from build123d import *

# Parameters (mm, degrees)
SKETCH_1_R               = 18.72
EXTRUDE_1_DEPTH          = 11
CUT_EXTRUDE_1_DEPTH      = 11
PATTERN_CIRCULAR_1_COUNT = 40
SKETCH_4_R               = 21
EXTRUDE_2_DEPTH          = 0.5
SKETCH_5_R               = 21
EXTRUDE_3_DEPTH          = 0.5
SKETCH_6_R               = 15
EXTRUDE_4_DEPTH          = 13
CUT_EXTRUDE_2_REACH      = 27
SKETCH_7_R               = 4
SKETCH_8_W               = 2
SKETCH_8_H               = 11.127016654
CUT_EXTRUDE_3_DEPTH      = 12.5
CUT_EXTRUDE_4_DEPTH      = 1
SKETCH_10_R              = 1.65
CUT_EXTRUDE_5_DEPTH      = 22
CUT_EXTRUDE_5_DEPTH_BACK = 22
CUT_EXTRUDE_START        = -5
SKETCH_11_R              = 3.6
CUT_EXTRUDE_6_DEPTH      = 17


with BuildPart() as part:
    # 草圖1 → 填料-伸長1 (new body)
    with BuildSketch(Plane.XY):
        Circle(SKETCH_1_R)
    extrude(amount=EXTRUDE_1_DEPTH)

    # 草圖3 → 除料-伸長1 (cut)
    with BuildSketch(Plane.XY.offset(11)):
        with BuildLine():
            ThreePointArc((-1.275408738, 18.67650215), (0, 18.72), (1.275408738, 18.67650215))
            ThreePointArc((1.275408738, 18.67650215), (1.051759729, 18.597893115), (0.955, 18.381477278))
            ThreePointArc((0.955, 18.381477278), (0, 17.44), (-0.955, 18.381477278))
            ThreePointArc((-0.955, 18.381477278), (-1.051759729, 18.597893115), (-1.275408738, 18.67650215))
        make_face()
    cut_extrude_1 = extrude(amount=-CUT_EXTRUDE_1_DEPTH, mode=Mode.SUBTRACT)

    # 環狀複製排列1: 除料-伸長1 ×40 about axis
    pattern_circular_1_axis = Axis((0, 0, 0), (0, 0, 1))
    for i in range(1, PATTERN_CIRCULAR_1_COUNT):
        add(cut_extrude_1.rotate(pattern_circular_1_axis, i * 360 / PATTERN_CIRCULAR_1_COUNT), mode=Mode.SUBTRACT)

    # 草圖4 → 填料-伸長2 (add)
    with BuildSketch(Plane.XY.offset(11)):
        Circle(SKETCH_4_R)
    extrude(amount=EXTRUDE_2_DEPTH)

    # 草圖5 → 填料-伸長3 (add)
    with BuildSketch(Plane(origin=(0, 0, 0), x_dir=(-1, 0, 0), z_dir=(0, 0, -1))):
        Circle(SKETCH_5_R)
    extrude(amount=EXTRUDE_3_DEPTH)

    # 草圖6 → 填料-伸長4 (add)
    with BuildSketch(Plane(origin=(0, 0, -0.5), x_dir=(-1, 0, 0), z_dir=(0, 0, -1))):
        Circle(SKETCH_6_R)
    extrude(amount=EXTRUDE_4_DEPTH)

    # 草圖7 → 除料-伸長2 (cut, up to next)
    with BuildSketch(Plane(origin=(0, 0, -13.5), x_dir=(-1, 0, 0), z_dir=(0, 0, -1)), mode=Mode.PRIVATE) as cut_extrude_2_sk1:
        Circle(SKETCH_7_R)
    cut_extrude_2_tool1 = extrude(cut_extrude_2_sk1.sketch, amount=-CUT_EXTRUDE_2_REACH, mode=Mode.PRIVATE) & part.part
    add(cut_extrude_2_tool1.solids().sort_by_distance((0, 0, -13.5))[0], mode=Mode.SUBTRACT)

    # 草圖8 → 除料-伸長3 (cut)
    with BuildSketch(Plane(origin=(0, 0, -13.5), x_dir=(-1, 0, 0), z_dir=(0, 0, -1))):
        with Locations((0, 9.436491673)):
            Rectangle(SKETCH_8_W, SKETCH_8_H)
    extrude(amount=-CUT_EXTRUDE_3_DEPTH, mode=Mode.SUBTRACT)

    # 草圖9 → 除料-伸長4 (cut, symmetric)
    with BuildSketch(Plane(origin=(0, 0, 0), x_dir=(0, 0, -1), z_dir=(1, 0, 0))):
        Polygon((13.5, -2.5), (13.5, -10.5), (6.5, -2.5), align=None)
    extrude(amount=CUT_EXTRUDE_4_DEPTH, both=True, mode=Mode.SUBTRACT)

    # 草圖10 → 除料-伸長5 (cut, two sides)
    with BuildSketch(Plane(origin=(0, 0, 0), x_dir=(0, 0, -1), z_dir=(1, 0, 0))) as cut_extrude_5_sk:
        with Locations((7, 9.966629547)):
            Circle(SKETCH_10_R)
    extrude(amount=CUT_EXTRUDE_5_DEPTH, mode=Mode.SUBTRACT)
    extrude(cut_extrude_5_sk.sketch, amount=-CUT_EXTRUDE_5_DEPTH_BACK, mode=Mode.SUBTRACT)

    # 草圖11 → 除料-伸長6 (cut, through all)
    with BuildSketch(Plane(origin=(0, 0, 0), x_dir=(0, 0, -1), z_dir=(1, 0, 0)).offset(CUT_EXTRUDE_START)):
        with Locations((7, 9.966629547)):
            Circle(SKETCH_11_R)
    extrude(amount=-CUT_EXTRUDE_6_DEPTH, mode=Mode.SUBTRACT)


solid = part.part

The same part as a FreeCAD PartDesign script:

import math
import FreeCAD as App
import Part
import Sketcher

V = App.Vector
Q = App.Units.Quantity


def add_polygon(sketch, points):
    """Adds a closed chain of lines whose ends are joined by coincident constraints."""
    first, n = sketch.GeometryCount, len(points)
    for a, b in zip(points, points[1:] + points[:1]):
        sketch.addGeometry(Part.LineSegment(App.Vector(*a, 0), App.Vector(*b, 0)), False)
    for i in range(n):
        sketch.addConstraint(Sketcher.Constraint("Coincident", first + i, 2, first + (i + 1) % n, 1))

doc = App.newDocument("Part")
body = doc.addObject("PartDesign::Body", "Body")

sketch1 = doc.addObject("Sketcher::SketchObject", "Sketch")
body.addObject(sketch1)
sketch1.AttachmentSupport = (doc.XY_Plane, [""])
sketch1.MapMode = "FlatFace"
sketch1.addGeometry(Part.Circle(V(0, 0, 0), V(0, 0, 1), 18.72), False)
sketch1.addConstraint(Sketcher.Constraint("Coincident", 0, 3, -1, 1))
sketch1.addConstraint(Sketcher.Constraint("Diameter", 0, Q("37.44 mm")))
pad1 = doc.addObject("PartDesign::Pad", "Pad")
body.addObject(pad1)
pad1.Profile = sketch1
pad1.Length = 11

sketch2 = doc.addObject("Sketcher::SketchObject", "Sketch001")
body.addObject(sketch2)
sketch2.AttachmentSupport = (doc.XY_Plane, [""])
sketch2.MapMode = "FlatFace"
sketch2.AttachmentOffset = App.Placement(V(0, 0, 11), App.Rotation())
sketch2.addGeometry(Part.ArcOfCircle(Part.Circle(V(0, 0, 0), V(0, 0, 1), 18.72), math.radians(86.093366), math.radians(93.906634)), False)
sketch2.addGeometry(Part.ArcOfCircle(Part.Circle(V(-1.254969, 18.377199, 0), V(0, 0, 1), 0.3), math.radians(0.817075), math.radians(93.906634)), False)
sketch2.addGeometry(Part.ArcOfCircle(Part.Circle(V(0, 18.395097, 0), V(0, 0, 1), 0.955097), math.radians(-179.182925), math.radians(-0.817075)), False)
sketch2.addGeometry(Part.ArcOfCircle(Part.Circle(V(1.254969, 18.377199, 0), V(0, 0, 1), 0.3), math.radians(86.093366), math.radians(179.182925)), False)
sketch2.addConstraint(Sketcher.Constraint("Tangent", 0, 2, 1, 2))
sketch2.addConstraint(Sketcher.Constraint("Tangent", 1, 1, 2, 1))
sketch2.addConstraint(Sketcher.Constraint("Tangent", 2, 2, 3, 2))
sketch2.addConstraint(Sketcher.Constraint("Tangent", 3, 1, 0, 1))
sketch2.addConstraint(Sketcher.Constraint("Coincident", 0, 3, -1, 1))
sketch2.addConstraint(Sketcher.Constraint("Equal", 1, 3))
sketch2.addConstraint(Sketcher.Constraint("PointOnObject", 2, 3, -2))
sketch2.addConstraint(Sketcher.Constraint("Radius", 1, Q("0.3 mm")))
sketch2.addConstraint(Sketcher.Constraint("Radius", 0, Q("18.72 mm")))
sketch2.addConstraint(Sketcher.Constraint("DistanceX", 1, 1, 2, 2, Q("1.91 mm")))
sketch2.addConstraint(Sketcher.Constraint("Radius", 2, Q("0.955097 mm")))
pocket1 = doc.addObject("PartDesign::Pocket", "Pocket")
body.addObject(pocket1)
pocket1.Profile = sketch2
pocket1.Length = 11
doc.recompute()

polarpattern = doc.addObject("PartDesign::PolarPattern", "PolarPattern")
body.addObject(polarpattern)
polarpattern.Originals = [pocket1]
polarpattern.Axis = (doc.Z_Axis, [""])
polarpattern.Angle = 360
polarpattern.Occurrences = 40
body.Tip = polarpattern

sketch3 = doc.addObject("Sketcher::SketchObject", "Sketch002")
body.addObject(sketch3)
sketch3.AttachmentSupport = (doc.XY_Plane, [""])
sketch3.MapMode = "FlatFace"
sketch3.AttachmentOffset = App.Placement(V(0, 0, 11), App.Rotation())
sketch3.addGeometry(Part.Circle(V(0, 0, 0), V(0, 0, 1), 21), False)
sketch3.addConstraint(Sketcher.Constraint("Coincident", 0, 3, -1, 1))
sketch3.addConstraint(Sketcher.Constraint("Diameter", 0, Q("42 mm")))
pad2 = doc.addObject("PartDesign::Pad", "Pad001")
body.addObject(pad2)
pad2.Profile = sketch3
pad2.Length = 0.5

sketch4 = doc.addObject("Sketcher::SketchObject", "Sketch003")
body.addObject(sketch4)
sketch4.AttachmentSupport = (doc.XY_Plane, [""])
sketch4.MapMode = "FlatFace"
sketch4.addGeometry(Part.Circle(V(0, 0, 0), V(0, 0, 1), 21), False)
sketch4.addConstraint(Sketcher.Constraint("Coincident", 0, 3, -1, 1))
sketch4.addConstraint(Sketcher.Constraint("Diameter", 0, Q("42 mm")))
pad3 = doc.addObject("PartDesign::Pad", "Pad002")
body.addObject(pad3)
pad3.Profile = sketch4
pad3.Length = 0.5
pad3.Reversed = True

sketch5 = doc.addObject("Sketcher::SketchObject", "Sketch004")
body.addObject(sketch5)
sketch5.AttachmentSupport = (doc.XY_Plane, [""])
sketch5.MapMode = "FlatFace"
sketch5.AttachmentOffset = App.Placement(V(0, 0, -0.5), App.Rotation())
sketch5.addGeometry(Part.Circle(V(0, 0, 0), V(0, 0, 1), 15), False)
sketch5.addConstraint(Sketcher.Constraint("Coincident", 0, 3, -1, 1))
sketch5.addConstraint(Sketcher.Constraint("Diameter", 0, Q("30 mm")))
pad4 = doc.addObject("PartDesign::Pad", "Pad003")
body.addObject(pad4)
pad4.Profile = sketch5
pad4.Length = 13
pad4.Reversed = True

sketch6 = doc.addObject("Sketcher::SketchObject", "Sketch005")
body.addObject(sketch6)
sketch6.AttachmentSupport = (doc.XY_Plane, [""])
sketch6.MapMode = "FlatFace"
sketch6.AttachmentOffset = App.Placement(V(0, 0, -13.5), App.Rotation())
sketch6.addGeometry(Part.Circle(V(0, 0, 0), V(0, 0, 1), 4), False)
sketch6.addConstraint(Sketcher.Constraint("Coincident", 0, 3, -1, 1))
sketch6.addConstraint(Sketcher.Constraint("Diameter", 0, Q("8 mm")))
pocket2 = doc.addObject("PartDesign::Pocket", "Pocket001")
body.addObject(pocket2)
pocket2.Profile = sketch6
pocket2.Type = "UpToFirst"
pocket2.Reversed = True

sketch7 = doc.addObject("Sketcher::SketchObject", "Sketch006")
body.addObject(sketch7)
sketch7.AttachmentSupport = (doc.XY_Plane, [""])
sketch7.MapMode = "FlatFace"
sketch7.AttachmentOffset = App.Placement(V(0, 0, -13.5), App.Rotation())
add_polygon(sketch7, [(1, 15), (1, 3.872983), (-1, 3.872983), (-1, 15)])
sketch7.addConstraint(Sketcher.Constraint("Vertical", 0))
sketch7.addConstraint(Sketcher.Constraint("Horizontal", 1))
sketch7.addConstraint(Sketcher.Constraint("Vertical", 2))
sketch7.addConstraint(Sketcher.Constraint("Horizontal", 3))
sketch7.addConstraint(Sketcher.Constraint("DistanceX", 1, 2, 1, 1, Q("2 mm")))
sketch7.addConstraint(Sketcher.Constraint("DistanceX", -1, 1, 0, 2, Q("1 mm")))
sketch7.addConstraint(Sketcher.Constraint("DistanceY", -1, 1, 2, 2, Q("15 mm")))
sketch7.addConstraint(Sketcher.Constraint("DistanceY", 0, 2, 0, 1, Q("11.127017 mm")))
pocket3 = doc.addObject("PartDesign::Pocket", "Pocket002")
body.addObject(pocket3)
pocket3.Profile = sketch7
pocket3.Length = 12.5
pocket3.Reversed = True

sketch8 = doc.addObject("Sketcher::SketchObject", "Sketch007")
body.addObject(sketch8)
sketch8.AttachmentSupport = (doc.YZ_Plane, [""])
sketch8.MapMode = "FlatFace"
add_polygon(sketch8, [(-10.5, -13.5), (-2.5, -13.5), (-2.5, -6.5)])
sketch8.addConstraint(Sketcher.Constraint("Horizontal", 0))
sketch8.addConstraint(Sketcher.Constraint("Vertical", 1))
sketch8.addConstraint(Sketcher.Constraint("DistanceX", 0, 1, 0, 2, Q("8 mm")))
sketch8.addConstraint(Sketcher.Constraint("DistanceY", 1, 1, 1, 2, Q("7 mm")))
sketch8.addConstraint(Sketcher.Constraint("DistanceX", 0, 2, -1, 1, Q("2.5 mm")))
sketch8.addConstraint(Sketcher.Constraint("DistanceY", 0, 2, -1, 1, Q("13.5 mm")))
pocket4 = doc.addObject("PartDesign::Pocket", "Pocket003")
body.addObject(pocket4)
pocket4.Profile = sketch8
pocket4.Length = 2
pocket4.Midplane = True

sketch9 = doc.addObject("Sketcher::SketchObject", "Sketch008")
body.addObject(sketch9)
sketch9.AttachmentSupport = (doc.YZ_Plane, [""])
sketch9.MapMode = "FlatFace"
sketch9.addGeometry(Part.Circle(V(9.96663, -7, 0), V(0, 0, 1), 1.65), False)
sketch9.addConstraint(Sketcher.Constraint("Diameter", 0, Q("3.3 mm")))
sketch9.addConstraint(Sketcher.Constraint("DistanceY", 0, 3, -1, 1, Q("7 mm")))
sketch9.addConstraint(Sketcher.Constraint("DistanceX", -1, 1, 0, 3, Q("9.96663 mm")))
pocket5 = doc.addObject("PartDesign::Pocket", "Pocket004")
body.addObject(pocket5)
pocket5.Profile = sketch9
pocket5.Type = "ThroughAll"
pocket5.Midplane = True

sketch10 = doc.addObject("Sketcher::SketchObject", "Sketch009")
body.addObject(sketch10)
sketch10.AttachmentSupport = (doc.YZ_Plane, [""])
sketch10.MapMode = "FlatFace"
sketch10.AttachmentOffset = App.Placement(V(0, 0, -5), App.Rotation())
sketch10.addGeometry(Part.Circle(V(9.96663, -7, 0), V(0, 0, 1), 3.6), False)
sketch10.addConstraint(Sketcher.Constraint("Diameter", 0, Q("7.2 mm")))
sketch10.addConstraint(Sketcher.Constraint("DistanceY", 0, 3, -1, 1, Q("7 mm")))
sketch10.addConstraint(Sketcher.Constraint("DistanceX", -1, 1, 0, 3, Q("9.96663 mm")))
pocket6 = doc.addObject("PartDesign::Pocket", "Pocket005")
body.addObject(pocket6)
pocket6.Profile = sketch10
pocket6.Type = "ThroughAll"

doc.recompute()
